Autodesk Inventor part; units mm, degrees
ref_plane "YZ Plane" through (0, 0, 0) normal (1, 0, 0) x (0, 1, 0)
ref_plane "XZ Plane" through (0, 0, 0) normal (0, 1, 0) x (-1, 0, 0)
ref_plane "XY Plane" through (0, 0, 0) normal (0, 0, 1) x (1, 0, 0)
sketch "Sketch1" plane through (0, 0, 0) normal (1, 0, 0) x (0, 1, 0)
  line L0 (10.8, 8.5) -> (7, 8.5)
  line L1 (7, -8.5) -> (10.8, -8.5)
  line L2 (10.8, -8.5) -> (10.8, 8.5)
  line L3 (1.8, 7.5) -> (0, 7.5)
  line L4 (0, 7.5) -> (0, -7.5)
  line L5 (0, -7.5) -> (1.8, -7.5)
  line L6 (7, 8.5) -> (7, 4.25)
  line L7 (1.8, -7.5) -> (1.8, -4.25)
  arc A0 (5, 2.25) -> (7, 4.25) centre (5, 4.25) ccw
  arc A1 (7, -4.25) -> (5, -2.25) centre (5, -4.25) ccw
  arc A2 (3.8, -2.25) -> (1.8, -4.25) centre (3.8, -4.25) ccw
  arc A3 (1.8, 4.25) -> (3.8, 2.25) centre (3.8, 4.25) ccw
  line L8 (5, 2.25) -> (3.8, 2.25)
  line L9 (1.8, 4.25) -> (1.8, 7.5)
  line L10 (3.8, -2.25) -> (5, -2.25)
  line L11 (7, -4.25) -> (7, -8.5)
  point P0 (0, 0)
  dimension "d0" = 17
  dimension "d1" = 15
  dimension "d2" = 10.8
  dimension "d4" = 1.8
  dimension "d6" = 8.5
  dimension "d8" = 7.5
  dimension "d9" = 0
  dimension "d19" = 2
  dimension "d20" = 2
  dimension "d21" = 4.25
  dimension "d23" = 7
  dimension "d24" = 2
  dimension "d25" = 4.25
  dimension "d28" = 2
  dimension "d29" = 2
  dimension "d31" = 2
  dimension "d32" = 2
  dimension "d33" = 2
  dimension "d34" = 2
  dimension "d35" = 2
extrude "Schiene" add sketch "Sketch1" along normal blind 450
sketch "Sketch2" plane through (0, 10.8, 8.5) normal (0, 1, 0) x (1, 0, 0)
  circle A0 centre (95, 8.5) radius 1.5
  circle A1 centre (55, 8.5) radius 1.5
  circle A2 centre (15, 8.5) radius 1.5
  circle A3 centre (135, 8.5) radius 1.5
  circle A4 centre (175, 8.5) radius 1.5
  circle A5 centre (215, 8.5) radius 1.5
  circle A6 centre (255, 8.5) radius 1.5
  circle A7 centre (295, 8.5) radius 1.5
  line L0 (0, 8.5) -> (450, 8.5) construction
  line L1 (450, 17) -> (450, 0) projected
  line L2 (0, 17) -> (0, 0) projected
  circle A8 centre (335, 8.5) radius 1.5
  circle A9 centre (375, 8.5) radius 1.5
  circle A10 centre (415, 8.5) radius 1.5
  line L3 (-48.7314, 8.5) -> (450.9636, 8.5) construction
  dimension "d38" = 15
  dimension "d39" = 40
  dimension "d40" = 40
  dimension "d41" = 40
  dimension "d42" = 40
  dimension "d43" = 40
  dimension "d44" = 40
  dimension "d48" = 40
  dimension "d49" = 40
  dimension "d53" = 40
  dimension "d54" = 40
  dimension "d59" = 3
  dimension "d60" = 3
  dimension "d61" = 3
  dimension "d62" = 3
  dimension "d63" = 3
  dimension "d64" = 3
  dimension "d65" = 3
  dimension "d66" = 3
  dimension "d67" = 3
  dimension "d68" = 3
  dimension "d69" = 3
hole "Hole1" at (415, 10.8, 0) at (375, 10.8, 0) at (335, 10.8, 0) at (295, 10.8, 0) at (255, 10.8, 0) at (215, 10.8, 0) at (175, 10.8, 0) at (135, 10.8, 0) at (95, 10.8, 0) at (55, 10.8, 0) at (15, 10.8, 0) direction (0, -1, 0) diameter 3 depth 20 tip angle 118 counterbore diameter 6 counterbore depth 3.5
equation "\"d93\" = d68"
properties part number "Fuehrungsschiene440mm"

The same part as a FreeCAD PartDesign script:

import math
import FreeCAD as App
import Part
import Sketcher

doc = App.newDocument("Part")
body = doc.addObject("PartDesign::Body", "Body")

# Sketch on YZ plane
sketch1 = body.newObject("Sketcher::SketchObject", "Sketch")
sketch1.AttachmentSupport = (doc.getObject("YZ_Plane"), [""])
sketch1.MapMode = "FlatFace"
sketch1.addGeometry([
    Part.LineSegment(App.Vector(10.8, -8.5, 0), App.Vector(10.8, 8.5, 0)),  # 0
    Part.LineSegment(App.Vector(10.8, 8.5, 0), App.Vector(7, 8.5, 0)),  # 1
    Part.LineSegment(App.Vector(7, 8.5, 0), App.Vector(7, 4.2, 0)),  # 2
    Part.ArcOfCircle(Part.Circle(App.Vector(5, 4.2, 0), App.Vector(0, 0, 1), 2), math.radians(-90), math.radians(0)),  # 3
    Part.LineSegment(App.Vector(5, 2.2, 0), App.Vector(3.8, 2.2, 0)),  # 4
    Part.ArcOfCircle(Part.Circle(App.Vector(3.8, 4.2, 0), App.Vector(0, 0, 1), 2), math.radians(180), math.radians(270)),  # 5
    Part.LineSegment(App.Vector(1.8, 4.2, 0), App.Vector(1.8, 7.5, 0)),  # 6
    Part.LineSegment(App.Vector(1.8, 7.5, 0), App.Vector(0, 7.5, 0)),  # 7
    Part.LineSegment(App.Vector(0, 7.5, 0), App.Vector(0, -7.5, 0)),  # 8
    Part.LineSegment(App.Vector(0, -7.5, 0), App.Vector(1.8, -7.5, 0)),  # 9
    Part.LineSegment(App.Vector(1.8, -7.5, 0), App.Vector(1.8, -4.2, 0)),  # 10
    Part.ArcOfCircle(Part.Circle(App.Vector(3.8, -4.2, 0), App.Vector(0, 0, 1), 2), math.radians(90), math.radians(180)),  # 11
    Part.LineSegment(App.Vector(3.8, -2.2, 0), App.Vector(5, -2.2, 0)),  # 12
    Part.ArcOfCircle(Part.Circle(App.Vector(5, -4.2, 0), App.Vector(0, 0, 1), 2), math.radians(0), math.radians(90)),  # 13
    Part.LineSegment(App.Vector(7, -4.2, 0), App.Vector(7, -8.5, 0)),  # 14
    Part.LineSegment(App.Vector(7, -8.5, 0), App.Vector(10.8, -8.5, 0)),  # 15
], False)
sketch1.addConstraint([
    Sketcher.Constraint("Coincident", 0, 2, 1, 1),
    Sketcher.Constraint("Coincident", 1, 2, 2, 1),
    Sketcher.Constraint("Tangent", 2, 2, 3, 2),
    Sketcher.Constraint("Tangent", 3, 1, 4, 1),
    Sketcher.Constraint("Tangent", 4, 2, 5, 2),
    Sketcher.Constraint("Tangent", 5, 1, 6, 1),
    Sketcher.Constraint("Coincident", 6, 2, 7, 1),
    Sketcher.Constraint("Coincident", 7, 2, 8, 1),
    Sketcher.Constraint("Coincident", 8, 2, 9, 1),
    Sketcher.Constraint("Coincident", 9, 2, 10, 1),
    Sketcher.Constraint("Tangent", 10, 2, 11, 2),
    Sketcher.Constraint("Tangent", 11, 1, 12, 1),
    Sketcher.Constraint("Tangent", 12, 2, 13, 2),
    Sketcher.Constraint("Tangent", 13, 1, 14, 1),
    Sketcher.Constraint("Coincident", 14, 2, 15, 1),
    Sketcher.Constraint("Coincident", 15, 2, 0, 1),
    Sketcher.Constraint("Vertical", 0),
    Sketcher.Constraint("Horizontal", 1),
    Sketcher.Constraint("Vertical", 2),
    Sketcher.Constraint("Horizontal", 4),
    Sketcher.Constraint("Vertical", 6),
    Sketcher.Constraint("Horizontal", 7),
    Sketcher.Constraint("Vertical", 8),
    Sketcher.Constraint("Horizontal", 9),
    Sketcher.Constraint("Vertical", 10),
    Sketcher.Constraint("Horizontal", 12),
    Sketcher.Constraint("Vertical", 14),
    Sketcher.Constraint("Horizontal", 15),
    Sketcher.Constraint("Equal", 3, 5),
    Sketcher.Constraint("Equal", 5, 11),
    Sketcher.Constraint("Equal", 11, 13),
    Sketcher.Constraint("Symmetric", 7, 2, 8, 2, -1, 1),
    Sketcher.Constraint("Symmetric", 5, 3, 11, 3, -1),
    Sketcher.Constraint("Symmetric", 1, 2, 14, 2, -1),
    Sketcher.Constraint("Radius", 3, 2.0),
    Sketcher.Constraint("DistanceY", 0, 1, 0, 2, 17.0),
    Sketcher.Constraint("DistanceY", 8, 2, 8, 1, 15.0),
    Sketcher.Constraint("DistanceX", 7, 2, 7, 1, 1.8),
    Sketcher.Constraint("DistanceX", -1, 1, 1, 2, 7.0),
    Sketcher.Constraint("DistanceX", 5, 3, 0, 2, 7.0),
    Sketcher.Constraint("DistanceY", 2, 2, 2, 1, 4.25),
])
pad1 = body.newObject("PartDesign::Pad", "Pad")
pad1.Profile = sketch1
pad1.Length = 450

# Sketch on XZ plane
sketch2 = body.newObject("Sketcher::SketchObject", "Sketch001")
sketch2.AttachmentSupport = (doc.getObject("XZ_Plane"), [""])
sketch2.MapMode = "FlatFace"
sketch2.AttachmentOffset = App.Placement(App.Vector(0, 0, -10.8), App.Rotation())
sketch2.addGeometry([
    Part.Circle(App.Vector(415, 0, 0), App.Vector(0, 0, 1), 1.5),  # 0
    Part.Circle(App.Vector(375, 0, 0), App.Vector(0, 0, 1), 1.5),  # 1
    Part.Circle(App.Vector(335, 0, 0), App.Vector(0, 0, 1), 1.5),  # 2
    Part.Circle(App.Vector(295, 0, 0), App.Vector(0, 0, 1), 1.5),  # 3
    Part.Circle(App.Vector(255, 0, 0), App.Vector(0, 0, 1), 1.5),  # 4
    Part.Circle(App.Vector(215, 0, 0), App.Vector(0, 0, 1), 1.5),  # 5
    Part.Circle(App.Vector(175, 0, 0), App.Vector(0, 0, 1), 1.5),  # 6
    Part.Circle(App.Vector(135, 0, 0), App.Vector(0, 0, 1), 1.5),  # 7
    Part.Circle(App.Vector(95, 0, 0), App.Vector(0, 0, 1), 1.5),  # 8
    Part.Circle(App.Vector(55, 0, 0), App.Vector(0, 0, 1), 1.5),  # 9
    Part.Circle(App.Vector(15, 0, 0), App.Vector(0, 0, 1), 1.5),  # 10
], False)
sketch2.addConstraint([
    Sketcher.Constraint("Equal", 0, 1),
    Sketcher.Constraint("Equal", 1, 2),
    Sketcher.Constraint("Equal", 2, 3),
    Sketcher.Constraint("Equal", 3, 4),
    Sketcher.Constraint("Equal", 4, 5),
    Sketcher.Constraint("Equal", 5, 6),
    Sketcher.Constraint("Equal", 6, 7),
    Sketcher.Constraint("Equal", 7, 8),
    Sketcher.Constraint("Equal", 8, 9),
    Sketcher.Constraint("Equal", 9, 10),
    Sketcher.Constraint("PointOnObject", 0, 3, -1),
    Sketcher.Constraint("PointOnObject", 1, 3, -1),
    Sketcher.Constraint("PointOnObject", 2, 3, -1),
    Sketcher.Constraint("PointOnObject", 3, 3, -1),
    Sketcher.Constraint("PointOnObject", 4, 3, -1),
    Sketcher.Constraint("PointOnObject", 5, 3, -1),
    Sketcher.Constraint("PointOnObject", 6, 3, -1),
    Sketcher.Constraint("PointOnObject", 7, 3, -1),
    Sketcher.Constraint("PointOnObject", 8, 3, -1),
    Sketcher.Constraint("PointOnObject", 9, 3, -1),
    Sketcher.Constraint("PointOnObject", 10, 3, -1),
    Sketcher.Constraint("Diameter", 0, 3.0),
    Sketcher.Constraint("DistanceX", -1, 1, 0, 3, 415.0),
    Sketcher.Constraint("DistanceX", -1, 1, 1, 3, 375.0),
    Sketcher.Constraint("DistanceX", -1, 1, 2, 3, 335.0),
    Sketcher.Constraint("DistanceX", -1, 1, 3, 3, 295.0),
    Sketcher.Constraint("DistanceX", -1, 1, 4, 3, 255.0),
    Sketcher.Constraint("DistanceX", -1, 1, 5, 3, 215.0),
    Sketcher.Constraint("DistanceX", -1, 1, 6, 3, 175.0),
    Sketcher.Constraint("DistanceX", -1, 1, 7, 3, 135.0),
    Sketcher.Constraint("DistanceX", -1, 1, 8, 3, 95.0),
    Sketcher.Constraint("DistanceX", -1, 1, 9, 3, 55.0),
    Sketcher.Constraint("DistanceX", -1, 1, 10, 3, 15.0),
])
doc.recompute()
hole = body.newObject("PartDesign::Hole", "Hole")
hole.Profile = sketch2
hole.ThreadType = "None"
hole.Diameter = 3
hole.DepthType = "Dimension"
hole.Depth = 20
hole.DrillPoint = "Angled"
hole.DrillPointAngle = 118
hole.HoleCutType = "Counterbore"
hole.HoleCutDiameter = 6
hole.HoleCutDepth = 3.5
hole.Reversed = True

doc.recompute()
